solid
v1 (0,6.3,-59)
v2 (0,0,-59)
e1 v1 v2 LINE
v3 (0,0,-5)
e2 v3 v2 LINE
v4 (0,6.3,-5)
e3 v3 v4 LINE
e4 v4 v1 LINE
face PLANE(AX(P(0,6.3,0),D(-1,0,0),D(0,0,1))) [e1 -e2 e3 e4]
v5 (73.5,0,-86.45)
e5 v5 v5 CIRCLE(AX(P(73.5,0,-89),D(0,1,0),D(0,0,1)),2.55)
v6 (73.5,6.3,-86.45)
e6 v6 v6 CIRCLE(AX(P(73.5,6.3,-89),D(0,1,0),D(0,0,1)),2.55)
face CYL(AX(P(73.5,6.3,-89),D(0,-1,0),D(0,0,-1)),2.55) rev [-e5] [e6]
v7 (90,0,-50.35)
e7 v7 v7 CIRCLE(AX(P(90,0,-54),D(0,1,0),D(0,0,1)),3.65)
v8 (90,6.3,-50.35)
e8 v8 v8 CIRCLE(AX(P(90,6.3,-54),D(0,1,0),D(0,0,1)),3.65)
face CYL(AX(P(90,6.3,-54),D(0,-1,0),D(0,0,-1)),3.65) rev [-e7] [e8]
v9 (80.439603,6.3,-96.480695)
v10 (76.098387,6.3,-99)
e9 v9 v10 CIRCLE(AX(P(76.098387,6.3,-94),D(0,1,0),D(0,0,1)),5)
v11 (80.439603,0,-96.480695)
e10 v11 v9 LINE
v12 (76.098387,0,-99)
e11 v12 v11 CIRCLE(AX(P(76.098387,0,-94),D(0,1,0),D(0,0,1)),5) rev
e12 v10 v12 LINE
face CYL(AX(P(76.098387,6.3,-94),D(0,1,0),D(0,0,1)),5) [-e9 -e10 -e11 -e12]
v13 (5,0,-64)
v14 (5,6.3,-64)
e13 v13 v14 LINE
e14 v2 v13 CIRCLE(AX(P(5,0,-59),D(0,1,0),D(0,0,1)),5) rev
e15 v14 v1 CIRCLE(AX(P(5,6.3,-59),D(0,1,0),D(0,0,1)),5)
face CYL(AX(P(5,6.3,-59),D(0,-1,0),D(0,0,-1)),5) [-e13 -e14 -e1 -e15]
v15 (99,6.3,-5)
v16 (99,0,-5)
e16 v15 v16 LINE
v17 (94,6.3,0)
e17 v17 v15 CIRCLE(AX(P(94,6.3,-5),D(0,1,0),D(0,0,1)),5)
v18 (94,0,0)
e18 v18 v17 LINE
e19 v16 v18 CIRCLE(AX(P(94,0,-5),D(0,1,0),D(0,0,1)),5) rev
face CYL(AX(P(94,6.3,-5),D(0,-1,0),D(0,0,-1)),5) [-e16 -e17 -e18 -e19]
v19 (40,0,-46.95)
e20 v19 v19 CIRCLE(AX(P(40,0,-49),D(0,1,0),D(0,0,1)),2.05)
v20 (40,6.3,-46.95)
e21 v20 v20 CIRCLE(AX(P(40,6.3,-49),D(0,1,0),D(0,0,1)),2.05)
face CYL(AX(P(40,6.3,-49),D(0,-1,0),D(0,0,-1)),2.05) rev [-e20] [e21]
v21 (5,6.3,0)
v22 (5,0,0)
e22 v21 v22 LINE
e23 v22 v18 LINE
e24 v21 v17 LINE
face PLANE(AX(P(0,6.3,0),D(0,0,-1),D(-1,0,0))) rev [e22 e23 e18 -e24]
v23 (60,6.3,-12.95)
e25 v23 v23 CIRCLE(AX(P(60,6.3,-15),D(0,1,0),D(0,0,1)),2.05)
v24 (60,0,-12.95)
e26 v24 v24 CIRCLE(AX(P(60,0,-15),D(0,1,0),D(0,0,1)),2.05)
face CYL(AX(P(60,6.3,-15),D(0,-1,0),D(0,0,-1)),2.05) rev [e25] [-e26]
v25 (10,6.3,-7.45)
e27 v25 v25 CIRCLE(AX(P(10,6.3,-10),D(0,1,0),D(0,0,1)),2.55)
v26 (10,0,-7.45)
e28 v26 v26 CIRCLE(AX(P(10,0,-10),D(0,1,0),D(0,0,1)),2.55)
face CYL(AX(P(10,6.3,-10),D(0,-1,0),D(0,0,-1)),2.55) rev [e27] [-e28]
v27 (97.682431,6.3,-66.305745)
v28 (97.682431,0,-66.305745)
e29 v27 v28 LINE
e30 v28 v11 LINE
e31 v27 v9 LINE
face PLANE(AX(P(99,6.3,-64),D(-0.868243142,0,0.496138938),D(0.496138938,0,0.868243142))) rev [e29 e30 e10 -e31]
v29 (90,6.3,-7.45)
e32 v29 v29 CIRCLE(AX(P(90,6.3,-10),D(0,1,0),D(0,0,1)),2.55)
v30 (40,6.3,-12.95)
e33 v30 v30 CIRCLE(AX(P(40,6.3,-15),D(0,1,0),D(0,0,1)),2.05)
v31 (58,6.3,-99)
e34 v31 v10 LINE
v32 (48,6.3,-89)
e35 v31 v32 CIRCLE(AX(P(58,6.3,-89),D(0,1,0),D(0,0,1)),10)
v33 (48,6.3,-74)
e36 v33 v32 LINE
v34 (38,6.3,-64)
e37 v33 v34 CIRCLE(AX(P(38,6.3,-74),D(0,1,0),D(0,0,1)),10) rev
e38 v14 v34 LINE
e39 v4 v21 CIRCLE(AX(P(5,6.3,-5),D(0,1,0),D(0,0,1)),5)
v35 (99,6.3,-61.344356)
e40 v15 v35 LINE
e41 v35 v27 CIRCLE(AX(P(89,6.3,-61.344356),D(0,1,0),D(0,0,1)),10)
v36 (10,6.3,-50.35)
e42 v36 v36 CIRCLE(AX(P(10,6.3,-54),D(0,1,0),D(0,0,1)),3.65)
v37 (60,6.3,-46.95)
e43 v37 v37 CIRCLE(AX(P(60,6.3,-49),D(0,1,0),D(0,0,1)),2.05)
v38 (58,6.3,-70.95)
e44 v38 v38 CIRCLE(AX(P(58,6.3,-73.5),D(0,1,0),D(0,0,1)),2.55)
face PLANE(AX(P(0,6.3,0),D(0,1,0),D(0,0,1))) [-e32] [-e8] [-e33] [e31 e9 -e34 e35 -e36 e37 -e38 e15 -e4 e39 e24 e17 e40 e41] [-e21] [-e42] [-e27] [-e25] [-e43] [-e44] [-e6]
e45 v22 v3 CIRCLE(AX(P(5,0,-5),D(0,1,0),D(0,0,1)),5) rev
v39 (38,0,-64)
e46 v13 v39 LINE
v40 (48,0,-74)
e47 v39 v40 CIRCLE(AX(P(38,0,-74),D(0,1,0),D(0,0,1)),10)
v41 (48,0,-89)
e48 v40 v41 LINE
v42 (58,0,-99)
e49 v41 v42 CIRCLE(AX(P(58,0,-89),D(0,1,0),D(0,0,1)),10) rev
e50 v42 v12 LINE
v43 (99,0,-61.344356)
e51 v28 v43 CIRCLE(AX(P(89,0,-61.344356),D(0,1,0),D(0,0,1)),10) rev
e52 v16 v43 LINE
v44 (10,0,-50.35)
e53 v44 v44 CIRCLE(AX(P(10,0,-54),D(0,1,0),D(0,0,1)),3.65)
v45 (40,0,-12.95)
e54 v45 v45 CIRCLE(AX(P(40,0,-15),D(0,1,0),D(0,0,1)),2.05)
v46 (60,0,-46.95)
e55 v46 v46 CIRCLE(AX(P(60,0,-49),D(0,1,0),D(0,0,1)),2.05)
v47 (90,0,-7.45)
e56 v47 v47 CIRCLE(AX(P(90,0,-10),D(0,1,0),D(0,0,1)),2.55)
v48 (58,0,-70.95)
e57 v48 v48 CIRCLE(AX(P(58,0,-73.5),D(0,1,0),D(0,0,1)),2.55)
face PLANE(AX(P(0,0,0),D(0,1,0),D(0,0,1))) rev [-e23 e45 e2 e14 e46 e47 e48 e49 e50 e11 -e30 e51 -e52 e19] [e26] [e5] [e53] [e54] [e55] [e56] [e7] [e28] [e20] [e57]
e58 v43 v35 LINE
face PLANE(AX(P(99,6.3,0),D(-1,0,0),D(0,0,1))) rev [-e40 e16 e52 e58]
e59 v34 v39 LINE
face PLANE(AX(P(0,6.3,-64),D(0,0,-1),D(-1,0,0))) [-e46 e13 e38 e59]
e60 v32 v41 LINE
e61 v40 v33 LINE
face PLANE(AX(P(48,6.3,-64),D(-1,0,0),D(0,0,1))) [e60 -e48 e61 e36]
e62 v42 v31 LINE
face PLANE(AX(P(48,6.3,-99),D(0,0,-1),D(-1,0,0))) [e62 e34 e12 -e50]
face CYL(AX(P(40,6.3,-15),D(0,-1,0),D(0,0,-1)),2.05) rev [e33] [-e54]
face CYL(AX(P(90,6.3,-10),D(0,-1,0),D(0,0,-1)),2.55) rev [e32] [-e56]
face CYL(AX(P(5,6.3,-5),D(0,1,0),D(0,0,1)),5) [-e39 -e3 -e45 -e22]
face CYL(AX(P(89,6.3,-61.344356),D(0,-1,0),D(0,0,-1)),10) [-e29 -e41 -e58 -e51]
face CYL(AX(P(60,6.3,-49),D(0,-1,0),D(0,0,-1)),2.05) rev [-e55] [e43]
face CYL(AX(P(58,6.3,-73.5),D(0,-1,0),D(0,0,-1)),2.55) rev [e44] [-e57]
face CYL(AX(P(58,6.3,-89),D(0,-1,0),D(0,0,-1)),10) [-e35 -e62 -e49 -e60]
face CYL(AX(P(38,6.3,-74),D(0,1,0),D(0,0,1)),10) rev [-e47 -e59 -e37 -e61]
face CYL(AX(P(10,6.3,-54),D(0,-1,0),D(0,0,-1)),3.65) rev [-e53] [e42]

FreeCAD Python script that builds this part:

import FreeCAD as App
import Part
import Sketcher


def edges_at(feature, points):
    """Names of the edges that pass closest to the given points."""
    edges = feature.Shape.Edges
    near = lambda p: min(range(len(edges)), key=lambda i: edges[i].distToShape(Part.Vertex(*p))[0])
    return sorted({f"Edge{near(p) + 1}" for p in points})

doc = App.newDocument("Part")
body = doc.addObject("PartDesign::Body", "Body")

# Sketch on XZ plane
sketch1 = doc.addObject("Sketcher::SketchObject", "Sketch")
body.addObject(sketch1)
sketch1.AttachmentSupport = (doc.XZ_Plane, [""])
sketch1.MapMode = "FlatFace"
sketch1.addGeometry([
    Part.LineSegment(App.Vector(48, -64, 0), App.Vector(0, -64, 0)),  # 0
    Part.LineSegment(App.Vector(0, -64, 0), App.Vector(0, 0, 0)),  # 1
    Part.LineSegment(App.Vector(0, 0, 0), App.Vector(99, 0, 0)),  # 2
    Part.LineSegment(App.Vector(99, 0, 0), App.Vector(99, -64, 0)),  # 3
    Part.LineSegment(App.Vector(99, -64, 0), App.Vector(79, -99, 0)),  # 4
    Part.LineSegment(App.Vector(79, -99, 0), App.Vector(48, -99, 0)),  # 5
    Part.LineSegment(App.Vector(48, -99, 0), App.Vector(48, -64, 0)),  # 6
], False)
sketch1.addConstraint([
    Sketcher.Constraint("Coincident", 0, 2, 1, 1),
    Sketcher.Constraint("Coincident", 1, 2, 2, 1),
    Sketcher.Constraint("Coincident", 2, 2, 3, 1),
    Sketcher.Constraint("Coincident", 3, 2, 4, 1),
    Sketcher.Constraint("Coincident", 4, 2, 5, 1),
    Sketcher.Constraint("Coincident", 5, 2, 6, 1),
    Sketcher.Constraint("Coincident", 6, 2, 0, 1),
    Sketcher.Constraint("Horizontal", 0),
    Sketcher.Constraint("Vertical", 1),
    Sketcher.Constraint("Horizontal", 2),
    Sketcher.Constraint("Vertical", 3),
    Sketcher.Constraint("Horizontal", 5),
    Sketcher.Constraint("Vertical", 6),
    Sketcher.Constraint("Coincident", 1, 2, -1, 1),
    Sketcher.Constraint("Horizontal", 0, 2, 3, 2),
    Sketcher.Constraint("DistanceX", 0, 2, 0, 1, 48.0),
    Sketcher.Constraint("DistanceX", 2, 1, 2, 2, 99.0),
    Sketcher.Constraint("DistanceX", 5, 2, 5, 1, 31.0),
    Sketcher.Constraint("DistanceY", 1, 1, 1, 2, 64.0),
    Sketcher.Constraint("DistanceY", 6, 1, 6, 2, 35.0),
])
pad1 = doc.addObject("PartDesign::Pad", "Pad")
body.addObject(pad1)
pad1.Profile = sketch1
pad1.Length = 6.3
pad1.Reversed = True

# Sketch on XZ plane
sketch2 = doc.addObject("Sketcher::SketchObject", "Sketch001")
body.addObject(sketch2)
sketch2.AttachmentSupport = (doc.XZ_Plane, [""])
sketch2.MapMode = "FlatFace"
sketch2.addGeometry(Part.Circle(App.Vector(73.5, -89, 0), App.Vector(0, 0, 1), 2.55), False)
sketch2.addConstraint([
    Sketcher.Constraint("Diameter", 0, 5.1),
    Sketcher.Constraint("DistanceY", 0, 3, -1, 1, 89.0),
    Sketcher.Constraint("DistanceX", -1, 1, 0, 3, 73.5),
])
pocket1 = doc.addObject("PartDesign::Pocket", "Pocket")
body.addObject(pocket1)
pocket1.Profile = sketch2
pocket1.Type = "ThroughAll"

# Sketch on XZ plane
sketch3 = doc.addObject("Sketcher::SketchObject", "Sketch002")
body.addObject(sketch3)
sketch3.AttachmentSupport = (doc.XZ_Plane, [""])
sketch3.MapMode = "FlatFace"
sketch3.addGeometry(Part.Circle(App.Vector(90, -54, 0), App.Vector(0, 0, 1), 3.65), False)
sketch3.addConstraint([
    Sketcher.Constraint("Diameter", 0, 7.3),
    Sketcher.Constraint("DistanceX", -1, 1, 0, 3, 90.0),
    Sketcher.Constraint("DistanceY", 0, 3, -1, 1, 54.0),
])
pocket2 = doc.addObject("PartDesign::Pocket", "Pocket001")
body.addObject(pocket2)
pocket2.Profile = sketch3
pocket2.Type = "ThroughAll"

# Sketch on XZ plane
sketch4 = doc.addObject("Sketcher::SketchObject", "Sketch003")
body.addObject(sketch4)
sketch4.AttachmentSupport = (doc.XZ_Plane, [""])
sketch4.MapMode = "FlatFace"
sketch4.addGeometry(Part.Circle(App.Vector(58, -73.5, 0), App.Vector(0, 0, 1), 2.55), False)
sketch4.addConstraint([
    Sketcher.Constraint("Diameter", 0, 5.1),
    Sketcher.Constraint("DistanceX", -1, 1, 0, 3, 58.0),
    Sketcher.Constraint("DistanceY", 0, 3, -1, 1, 73.5),
])
pocket3 = doc.addObject("PartDesign::Pocket", "Pocket002")
body.addObject(pocket3)
pocket3.Profile = sketch4
pocket3.Type = "ThroughAll"

# Sketch on XZ plane
sketch5 = doc.addObject("Sketcher::SketchObject", "Sketch004")
body.addObject(sketch5)
sketch5.AttachmentSupport = (doc.XZ_Plane, [""])
sketch5.MapMode = "FlatFace"
sketch5.addGeometry(Part.Circle(App.Vector(10, -54, 0), App.Vector(0, 0, 1), 3.65), False)
sketch5.addConstraint([
    Sketcher.Constraint("Diameter", 0, 7.3),
    Sketcher.Constraint("DistanceX", -1, 1, 0, 3, 10.0),
    Sketcher.Constraint("DistanceY", 0, 3, -1, 1, 54.0),
])
pocket4 = doc.addObject("PartDesign::Pocket", "Pocket003")
body.addObject(pocket4)
pocket4.Profile = sketch5
pocket4.Type = "ThroughAll"

# Sketch on XZ plane
sketch6 = doc.addObject("Sketcher::SketchObject", "Sketch005")
body.addObject(sketch6)
sketch6.AttachmentSupport = (doc.XZ_Plane, [""])
sketch6.MapMode = "FlatFace"
sketch6.addGeometry(Part.Circle(App.Vector(60, -49, 0), App.Vector(0, 0, 1), 2.05), False)
sketch6.addConstraint([
    Sketcher.Constraint("Diameter", 0, 4.1),
    Sketcher.Constraint("DistanceX", -1, 1, 0, 3, 60.0),
    Sketcher.Constraint("DistanceY", 0, 3, -1, 1, 49.0),
])
pocket5 = doc.addObject("PartDesign::Pocket", "Pocket004")
body.addObject(pocket5)
pocket5.Profile = sketch6
pocket5.Type = "ThroughAll"

# Sketch on XZ plane
sketch7 = doc.addObject("Sketcher::SketchObject", "Sketch006")
body.addObject(sketch7)
sketch7.AttachmentSupport = (doc.XZ_Plane, [""])
sketch7.MapMode = "FlatFace"
sketch7.addGeometry(Part.Circle(App.Vector(40, -49, 0), App.Vector(0, 0, 1), 2.05), False)
sketch7.addConstraint([
    Sketcher.Constraint("Diameter", 0, 4.1),
    Sketcher.Constraint("DistanceX", -1, 1, 0, 3, 40.0),
    Sketcher.Constraint("DistanceY", 0, 3, -1, 1, 49.0),
])
pocket6 = doc.addObject("PartDesign::Pocket", "Pocket005")
body.addObject(pocket6)
pocket6.Profile = sketch7
pocket6.Type = "ThroughAll"

# Sketch on XZ plane
sketch8 = doc.addObject("Sketcher::SketchObject", "Sketch007")
body.addObject(sketch8)
sketch8.AttachmentSupport = (doc.XZ_Plane, [""])
sketch8.MapMode = "FlatFace"
sketch8.addGeometry(Part.Circle(App.Vector(90, -10, 0), App.Vector(0, 0, 1), 2.55), False)
sketch8.addConstraint([
    Sketcher.Constraint("Diameter", 0, 5.1),
    Sketcher.Constraint("DistanceX", -1, 1, 0, 3, 90.0),
    Sketcher.Constraint("DistanceY", 0, 3, -1, 1, 10.0),
])
pocket7 = doc.addObject("PartDesign::Pocket", "Pocket006")
body.addObject(pocket7)
pocket7.Profile = sketch8
pocket7.Type = "ThroughAll"

# Sketch on XZ plane
sketch9 = doc.addObject("Sketcher::SketchObject", "Sketch008")
body.addObject(sketch9)
sketch9.AttachmentSupport = (doc.XZ_Plane, [""])
sketch9.MapMode = "FlatFace"
sketch9.addGeometry(Part.Circle(App.Vector(60, -15, 0), App.Vector(0, 0, 1), 2.05), False)
sketch9.addConstraint([
    Sketcher.Constraint("Diameter", 0, 4.1),
    Sketcher.Constraint("DistanceX", -1, 1, 0, 3, 60.0),
    Sketcher.Constraint("DistanceY", 0, 3, -1, 1, 15.0),
])
pocket8 = doc.addObject("PartDesign::Pocket", "Pocket007")
body.addObject(pocket8)
pocket8.Profile = sketch9
pocket8.Type = "ThroughAll"

# Sketch on XZ plane
sketch10 = doc.addObject("Sketcher::SketchObject", "Sketch009")
body.addObject(sketch10)
sketch10.AttachmentSupport = (doc.XZ_Plane, [""])
sketch10.MapMode = "FlatFace"
sketch10.addGeometry(Part.Circle(App.Vector(40, -15, 0), App.Vector(0, 0, 1), 2.05), False)
sketch10.addConstraint([
    Sketcher.Constraint("Diameter", 0, 4.1),
    Sketcher.Constraint("DistanceX", -1, 1, 0, 3, 40.0),
    Sketcher.Constraint("DistanceY", 0, 3, -1, 1, 15.0),
])
pocket9 = doc.addObject("PartDesign::Pocket", "Pocket008")
body.addObject(pocket9)
pocket9.Profile = sketch10
pocket9.Type = "ThroughAll"

# Sketch on XZ plane
sketch11 = doc.addObject("Sketcher::SketchObject", "Sketch010")
body.addObject(sketch11)
sketch11.AttachmentSupport = (doc.XZ_Plane, [""])
sketch11.MapMode = "FlatFace"
sketch11.addGeometry(Part.Circle(App.Vector(10, -10, 0), App.Vector(0, 0, 1), 2.55), False)
sketch11.addConstraint([
    Sketcher.Constraint("Diameter", 0, 5.1),
    Sketcher.Constraint("DistanceX", -1, 1, 0, 3, 10.0),
    Sketcher.Constraint("DistanceY", 0, 3, -1, 1, 10.0),
])
pocket10 = doc.addObject("PartDesign::Pocket", "Pocket009")
body.addObject(pocket10)
pocket10.Profile = sketch11
pocket10.Type = "ThroughAll"
doc.recompute()

fillet = doc.addObject("PartDesign::Fillet", "Fillet")
body.addObject(fillet)
fillet.Base = (pocket10, edges_at(pocket10, [(0, 3.15, 0), (0, 3.15, -64), (99, 3.15, 0)]))
fillet.Radius = 5
doc.recompute()

fillet2 = doc.addObject("PartDesign::Fillet", "Fillet001")
body.addObject(fillet2)
fillet2.Base = (fillet, edges_at(fillet, [(79, 3.15, -99)]))
fillet2.Radius = 5
doc.recompute()

fillet3 = doc.addObject("PartDesign::Fillet", "Fillet002")
body.addObject(fillet3)
fillet3.Base = (fillet2, edges_at(fillet2, [(48, 3.15, -99)]))
fillet3.Radius = 10
doc.recompute()

fillet4 = doc.addObject("PartDesign::Fillet", "Fillet003")
body.addObject(fillet4)
fillet4.Base = (fillet3, edges_at(fillet3, [(99, 3.15, -64)]))
fillet4.Radius = 10
doc.recompute()

fillet5 = doc.addObject("PartDesign::Fillet", "Fillet004")
body.addObject(fillet5)
fillet5.Base = (fillet4, edges_at(fillet4, [(48, 3.15, -64)]))
fillet5.Radius = 10

doc.recompute()
